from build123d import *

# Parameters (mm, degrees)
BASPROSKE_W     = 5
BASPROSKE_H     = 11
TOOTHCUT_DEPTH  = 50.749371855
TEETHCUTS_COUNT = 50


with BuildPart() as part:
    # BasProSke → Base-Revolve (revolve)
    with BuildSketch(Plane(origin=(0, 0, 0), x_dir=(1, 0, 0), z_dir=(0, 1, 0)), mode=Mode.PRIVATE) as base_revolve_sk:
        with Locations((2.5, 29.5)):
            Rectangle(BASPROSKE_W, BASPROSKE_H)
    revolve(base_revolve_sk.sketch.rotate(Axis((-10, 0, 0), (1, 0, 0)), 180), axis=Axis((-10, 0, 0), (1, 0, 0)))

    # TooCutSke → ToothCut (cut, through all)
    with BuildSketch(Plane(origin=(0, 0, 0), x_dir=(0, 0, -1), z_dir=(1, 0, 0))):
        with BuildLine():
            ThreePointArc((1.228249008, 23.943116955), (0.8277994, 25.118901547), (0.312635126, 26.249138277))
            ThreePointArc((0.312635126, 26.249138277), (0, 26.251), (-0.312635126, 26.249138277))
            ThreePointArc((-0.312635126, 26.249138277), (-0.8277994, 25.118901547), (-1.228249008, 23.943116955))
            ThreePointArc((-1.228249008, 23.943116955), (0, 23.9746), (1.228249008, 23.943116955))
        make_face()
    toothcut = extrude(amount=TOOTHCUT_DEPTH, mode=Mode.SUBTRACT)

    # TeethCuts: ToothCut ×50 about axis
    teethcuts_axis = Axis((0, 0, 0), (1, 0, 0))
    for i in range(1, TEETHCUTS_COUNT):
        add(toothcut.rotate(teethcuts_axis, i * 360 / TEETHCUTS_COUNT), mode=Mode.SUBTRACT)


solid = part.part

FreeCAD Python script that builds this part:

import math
import FreeCAD as App
import Part
import Sketcher


def add_polygon(sketch, points):
    """Adds a closed chain of lines whose ends are joined by coincident constraints."""
    first, n = sketch.GeometryCount, len(points)
    for a, b in zip(points, points[1:] + points[:1]):
        sketch.addGeometry(Part.LineSegment(App.Vector(*a, 0), App.Vector(*b, 0)), False)
    for i in range(n):
        sketch.addConstraint(Sketcher.Constraint("Coincident", first + i, 2, first + (i + 1) % n, 1))

doc = App.newDocument("Part")
body = doc.addObject("PartDesign::Body", "Body")

sketch1 = doc.addObject("Sketcher::SketchObject", "Sketch")
body.addObject(sketch1)
sketch1.AttachmentSupport = (doc.XZ_Plane, [""])
sketch1.MapMode = "FlatFace"
add_polygon(sketch1, [(0, -35), (0, -24), (5, -24), (5, -35)])
sketch1.addConstraint([
    Sketcher.Constraint("Vertical", 0),
    Sketcher.Constraint("Horizontal", 1),
    Sketcher.Constraint("Vertical", 2),
    Sketcher.Constraint("Horizontal", 3),
    Sketcher.Constraint("PointOnObject", 0, 2, -2),
    Sketcher.Constraint("DistanceX", 1, 1, 1, 2, 5.0),
    Sketcher.Constraint("DistanceY", 0, 1, 0, 2, 11.0),
    Sketcher.Constraint("DistanceY", 0, 2, -1, 1, 24.0),
])
revolution = doc.addObject("PartDesign::Revolution", "Revolution")
body.addObject(revolution)
revolution.Profile = sketch1
revolution.ReferenceAxis = (sketch1, ["H_Axis"])
revolution.Angle = 360

sketch2 = doc.addObject("Sketcher::SketchObject", "Sketch001")
body.addObject(sketch2)
sketch2.AttachmentSupport = (doc.YZ_Plane, [""])
sketch2.MapMode = "FlatFace"
sketch2.addGeometry([
    Part.ArcOfCircle(Part.Circle(App.Vector(20.506043, 10.789926, 0), App.Vector(0, 0, 1), 12.5), math.radians(-74.040017), math.radians(-62.64853)),
    Part.ArcOfCircle(Part.Circle(App.Vector(-0.000002, 0, 0), App.Vector(0, 0, 1), 26.251002), math.radians(-0.682378), math.radians(0.682378)),
    Part.ArcOfCircle(Part.Circle(App.Vector(20.506043, -10.789926, 0), App.Vector(0, 0, 1), 12.5), math.radians(62.64853), math.radians(74.040017)),
    Part.ArcOfCircle(Part.Circle(App.Vector(0, 0, 0), App.Vector(0, 0, 1), 23.9746), math.radians(-2.936621), math.radians(2.936621)),
], False)
sketch2.addConstraint([
    Sketcher.Constraint("Coincident", 0, 2, 1, 1),
    Sketcher.Constraint("Coincident", 1, 2, 2, 1),
    Sketcher.Constraint("Coincident", 2, 2, 3, 2),
    Sketcher.Constraint("Coincident", 3, 1, 0, 1),
    Sketcher.Constraint("Coincident", 1, 3, -1, 1),
    Sketcher.Constraint("Coincident", 3, 3, -1, 1),
    Sketcher.Constraint("Equal", 0, 2),
    Sketcher.Constraint("Symmetric", 0, 3, 2, 3, -1),
    Sketcher.Constraint("Radius", 0, 12.5),
    Sketcher.Constraint("Radius", 1, 26.251002),
    Sketcher.Constraint("Radius", 3, 23.9746),
    Sketcher.Constraint("DistanceY", 3, 1, 2, 2, 2.456498),
    Sketcher.Constraint("DistanceY", 2, 3, 0, 3, 21.579851),
])
pocket1 = doc.addObject("PartDesign::Pocket", "Pocket")
body.addObject(pocket1)
pocket1.Profile = sketch2
pocket1.Type = "ThroughAll"
pocket1.Reversed = True
doc.recompute()

polarpattern = doc.addObject("PartDesign::PolarPattern", "PolarPattern")
body.addObject(polarpattern)
polarpattern.Originals = [pocket1]
polarpattern.Axis = (doc.X_Axis, [""])
polarpattern.Angle = 360
polarpattern.Occurrences = 50
body.Tip = polarpattern

doc.recompute()
